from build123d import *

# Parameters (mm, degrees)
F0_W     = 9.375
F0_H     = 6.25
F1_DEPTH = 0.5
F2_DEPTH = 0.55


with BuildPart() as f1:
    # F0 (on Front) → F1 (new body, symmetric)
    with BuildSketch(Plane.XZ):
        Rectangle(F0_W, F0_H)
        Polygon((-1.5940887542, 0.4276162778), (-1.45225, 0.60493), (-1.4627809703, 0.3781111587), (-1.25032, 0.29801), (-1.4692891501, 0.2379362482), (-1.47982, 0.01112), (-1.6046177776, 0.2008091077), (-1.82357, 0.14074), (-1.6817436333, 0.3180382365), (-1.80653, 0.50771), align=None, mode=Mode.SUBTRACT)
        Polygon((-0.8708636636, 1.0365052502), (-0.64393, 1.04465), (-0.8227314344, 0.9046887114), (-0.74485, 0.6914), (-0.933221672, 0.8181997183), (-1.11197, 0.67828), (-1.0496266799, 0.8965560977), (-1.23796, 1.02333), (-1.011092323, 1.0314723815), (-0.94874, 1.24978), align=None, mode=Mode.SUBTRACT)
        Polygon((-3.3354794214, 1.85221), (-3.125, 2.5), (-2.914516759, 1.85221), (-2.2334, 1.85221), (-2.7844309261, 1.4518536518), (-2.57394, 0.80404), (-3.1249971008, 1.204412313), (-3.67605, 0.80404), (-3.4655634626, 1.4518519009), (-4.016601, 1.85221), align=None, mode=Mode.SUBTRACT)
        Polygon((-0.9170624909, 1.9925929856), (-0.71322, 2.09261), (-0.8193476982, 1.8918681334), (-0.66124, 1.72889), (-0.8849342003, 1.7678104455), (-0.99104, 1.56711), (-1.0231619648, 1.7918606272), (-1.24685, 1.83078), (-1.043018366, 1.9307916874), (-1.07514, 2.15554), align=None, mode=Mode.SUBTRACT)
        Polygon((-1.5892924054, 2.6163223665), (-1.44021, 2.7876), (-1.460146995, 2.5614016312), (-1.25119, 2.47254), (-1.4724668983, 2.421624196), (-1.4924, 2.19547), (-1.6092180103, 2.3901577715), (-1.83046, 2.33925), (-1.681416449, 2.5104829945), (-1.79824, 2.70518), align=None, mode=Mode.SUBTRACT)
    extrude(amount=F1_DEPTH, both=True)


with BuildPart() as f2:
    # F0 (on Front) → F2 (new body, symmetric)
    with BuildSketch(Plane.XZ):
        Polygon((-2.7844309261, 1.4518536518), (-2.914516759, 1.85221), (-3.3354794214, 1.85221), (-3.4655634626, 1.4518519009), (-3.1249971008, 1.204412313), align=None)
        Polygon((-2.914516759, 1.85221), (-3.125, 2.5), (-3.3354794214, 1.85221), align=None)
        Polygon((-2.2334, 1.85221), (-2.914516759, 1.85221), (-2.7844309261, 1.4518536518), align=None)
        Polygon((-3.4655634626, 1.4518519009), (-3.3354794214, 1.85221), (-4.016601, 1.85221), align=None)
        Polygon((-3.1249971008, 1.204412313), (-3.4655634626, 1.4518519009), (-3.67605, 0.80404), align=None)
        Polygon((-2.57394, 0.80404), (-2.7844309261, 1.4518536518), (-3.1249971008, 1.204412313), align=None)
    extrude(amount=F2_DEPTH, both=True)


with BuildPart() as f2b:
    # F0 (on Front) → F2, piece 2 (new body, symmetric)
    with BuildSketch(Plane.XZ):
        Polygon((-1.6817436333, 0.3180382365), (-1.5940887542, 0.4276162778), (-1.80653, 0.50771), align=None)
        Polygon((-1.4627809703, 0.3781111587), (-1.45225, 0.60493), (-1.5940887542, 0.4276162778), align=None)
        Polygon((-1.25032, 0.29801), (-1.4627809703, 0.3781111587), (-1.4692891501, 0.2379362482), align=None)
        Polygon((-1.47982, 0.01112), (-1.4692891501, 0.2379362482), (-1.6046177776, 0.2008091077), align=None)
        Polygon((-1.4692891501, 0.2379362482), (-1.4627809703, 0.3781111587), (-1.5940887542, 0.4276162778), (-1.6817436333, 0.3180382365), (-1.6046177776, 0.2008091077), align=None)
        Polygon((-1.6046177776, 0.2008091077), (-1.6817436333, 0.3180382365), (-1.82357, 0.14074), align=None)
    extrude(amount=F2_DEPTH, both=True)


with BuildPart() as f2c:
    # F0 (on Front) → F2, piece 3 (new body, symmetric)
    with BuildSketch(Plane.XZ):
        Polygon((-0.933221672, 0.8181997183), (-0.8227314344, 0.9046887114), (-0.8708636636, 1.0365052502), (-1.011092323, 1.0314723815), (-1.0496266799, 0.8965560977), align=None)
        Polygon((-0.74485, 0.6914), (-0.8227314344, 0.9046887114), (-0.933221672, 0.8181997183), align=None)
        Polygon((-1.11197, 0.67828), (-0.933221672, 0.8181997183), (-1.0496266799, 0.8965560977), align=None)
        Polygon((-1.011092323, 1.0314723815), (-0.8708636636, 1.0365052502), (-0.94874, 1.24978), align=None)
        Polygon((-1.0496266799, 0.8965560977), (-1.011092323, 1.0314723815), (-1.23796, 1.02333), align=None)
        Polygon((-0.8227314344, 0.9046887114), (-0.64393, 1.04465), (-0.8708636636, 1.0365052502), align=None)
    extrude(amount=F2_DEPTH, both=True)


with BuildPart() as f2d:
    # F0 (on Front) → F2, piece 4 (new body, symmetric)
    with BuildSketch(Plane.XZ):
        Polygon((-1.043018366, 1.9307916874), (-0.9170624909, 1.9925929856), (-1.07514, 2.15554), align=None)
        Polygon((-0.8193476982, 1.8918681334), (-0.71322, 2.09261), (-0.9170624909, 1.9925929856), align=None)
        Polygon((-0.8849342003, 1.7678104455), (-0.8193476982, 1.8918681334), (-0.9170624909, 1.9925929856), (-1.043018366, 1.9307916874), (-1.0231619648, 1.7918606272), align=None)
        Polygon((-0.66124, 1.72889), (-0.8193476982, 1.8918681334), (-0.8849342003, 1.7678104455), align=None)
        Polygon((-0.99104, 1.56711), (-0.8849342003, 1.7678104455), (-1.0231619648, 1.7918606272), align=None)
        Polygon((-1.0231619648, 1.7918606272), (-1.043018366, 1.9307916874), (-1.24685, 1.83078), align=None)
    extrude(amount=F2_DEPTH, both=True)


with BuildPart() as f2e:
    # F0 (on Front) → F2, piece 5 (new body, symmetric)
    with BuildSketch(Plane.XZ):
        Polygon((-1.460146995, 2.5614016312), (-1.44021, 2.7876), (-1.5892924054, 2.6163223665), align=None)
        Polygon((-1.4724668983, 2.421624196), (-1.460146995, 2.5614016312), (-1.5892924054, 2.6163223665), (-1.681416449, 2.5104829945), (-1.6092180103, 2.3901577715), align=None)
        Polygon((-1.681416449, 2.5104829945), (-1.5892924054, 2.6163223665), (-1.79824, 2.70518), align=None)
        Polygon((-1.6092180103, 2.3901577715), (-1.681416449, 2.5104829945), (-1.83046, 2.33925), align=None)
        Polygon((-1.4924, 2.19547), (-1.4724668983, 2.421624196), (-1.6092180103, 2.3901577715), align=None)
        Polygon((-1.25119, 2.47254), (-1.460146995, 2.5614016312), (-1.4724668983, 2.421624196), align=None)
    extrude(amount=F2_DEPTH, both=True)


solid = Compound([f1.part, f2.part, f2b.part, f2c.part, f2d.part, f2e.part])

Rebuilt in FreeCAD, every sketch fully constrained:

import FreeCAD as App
import Part
import Sketcher

V = App.Vector


def add_polygon(sketch, points):
    """Adds a closed chain of lines whose ends are joined by coincident constraints."""
    first, n = sketch.GeometryCount, len(points)
    for a, b in zip(points, points[1:] + points[:1]):
        sketch.addGeometry(Part.LineSegment(App.Vector(*a, 0), App.Vector(*b, 0)), False)
    for i in range(n):
        sketch.addConstraint(Sketcher.Constraint("Coincident", first + i, 2, first + (i + 1) % n, 1))

doc = App.newDocument("Part")
body = doc.addObject("PartDesign::Body", "Body")

sketch1 = body.newObject("Sketcher::SketchObject", "Sketch")
sketch1.AttachmentSupport = (doc.getObject("XZ_Plane"), [""])
sketch1.MapMode = "FlatFace"
add_polygon(sketch1, [(-4.6875, 3.125), (-4.6875, -3.125), (4.6875, -3.125), (4.6875, 3.125)])
add_polygon(sketch1, [(-1.80653, 0.50771), (-1.594089, 0.427616), (-1.45225, 0.60493), (-1.462781, 0.378111), (-1.25032, 0.29801), (-1.469289, 0.237936), (-1.47982, 0.01112), (-1.604618, 0.200809), (-1.82357, 0.14074), (-1.681744, 0.318038)])
add_polygon(sketch1, [(-0.94874, 1.24978), (-0.870864, 1.036505), (-0.64393, 1.04465), (-0.822731, 0.904689), (-0.74485, 0.6914), (-0.933222, 0.8182), (-1.11197, 0.67828), (-1.049627, 0.896556), (-1.23796, 1.02333), (-1.011092, 1.031472)])
add_polygon(sketch1, [(-4.016601, 1.85221), (-3.335479, 1.85221), (-3.125, 2.5), (-2.914517, 1.85221), (-2.2334, 1.85221), (-2.784431, 1.451854), (-2.57394, 0.80404), (-3.124997, 1.204412), (-3.67605, 0.80404), (-3.465563, 1.451852)])
add_polygon(sketch1, [(-1.07514, 2.15554), (-0.917062, 1.992593), (-0.71322, 2.09261), (-0.819348, 1.891868), (-0.66124, 1.72889), (-0.884934, 1.76781), (-0.99104, 1.56711), (-1.023162, 1.791861), (-1.24685, 1.83078), (-1.043018, 1.930792)])
add_polygon(sketch1, [(-1.79824, 2.70518), (-1.589292, 2.616322), (-1.44021, 2.7876), (-1.460147, 2.561402), (-1.25119, 2.47254), (-1.472467, 2.421624), (-1.4924, 2.19547), (-1.609218, 2.390158), (-1.83046, 2.33925), (-1.681416, 2.510483)])
sketch1.addConstraint([
    Sketcher.Constraint("Vertical", 0),
    Sketcher.Constraint("Horizontal", 1),
    Sketcher.Constraint("Vertical", 2),
    Sketcher.Constraint("Horizontal", 3),
    Sketcher.Constraint("Horizontal", 24),
    Sketcher.Constraint("Horizontal", 27),
    Sketcher.Constraint("DistanceY", 0, 2, 0, 1, 6.25),
    Sketcher.Constraint("DistanceY", -1, 1, 25, 2, 2.5),
    Sketcher.Constraint("DistanceX", 1, 1, 1, 2, 9.375),
    Sketcher.Constraint("Distance", 19, 0.226999),
    Sketcher.Constraint("DistanceY", 0, 2, -1, 1, 3.125),
    Sketcher.Constraint("DistanceX", 25, 2, -1, 1, 3.125),
    Sketcher.Constraint("DistanceY", 12, 2, 29, 2, 0.486002),
    Sketcher.Constraint("DistanceY", 43, 2, 47, 2, 0.317),
    Sketcher.Constraint("DistanceX", 24, 1, 24, 2, 0.681122),
    Sketcher.Constraint("DistanceX", 0, 2, -1, 1, 4.6875),
    Sketcher.Constraint("DistanceY", -1, 1, 17, 2, 0.6914),
    Sketcher.Constraint("DistanceY", -1, 1, 18, 2, 0.8182),
    Sketcher.Constraint("DistanceX", 27, 2, -1, 1, 2.2334),
    Sketcher.Constraint("DistanceX", 33, 2, -1, 1, 4.016601),
    Sketcher.Constraint("DistanceY", -1, 1, 45, 2, 2.7876),
    Sketcher.Constraint("DistanceY", -1, 1, 46, 2, 2.561402),
    Sketcher.Constraint("DistanceX", 49, 2, -1, 1, 1.4924),
    Sketcher.Constraint("DistanceY", 7, 2, 6, 2, 0.080101),
    Sketcher.Constraint("DistanceX", 4, 2, 8, 2, 0.1248),
    Sketcher.Constraint("DistanceX", 9, 2, 7, 2, 0.2295),
    Sketcher.Constraint("DistanceY", 10, 2, 7, 2, 0.097201),
    Sketcher.Constraint("DistanceY", 11, 2, 12, 2, 0.177298),
    Sketcher.Constraint("DistanceY", 8, 2, 12, 2, 0.080102),
    Sketcher.Constraint("DistanceY", 10, 2, 13, 2, 0.306901),
    Sketcher.Constraint("DistanceX", 16, 2, 15, 2, 0.178801),
    Sketcher.Constraint("DistanceX", 5, 2, 17, 2, 0.7074),
    Sketcher.Constraint("DistanceY", 13, 2, 24, 2, 1.3445),
    Sketcher.Constraint("DistanceY", 13, 2, 26, 2, 1.3445),
    Sketcher.Constraint("DistanceX", 28, 2, 13, 2, 0.977901),
    Sketcher.Constraint("DistanceX", 34, 2, 14, 2, 0.046199),
    Sketcher.Constraint("DistanceX", 23, 2, 37, 2, 0.2875),
    Sketcher.Constraint("DistanceY", 38, 2, 35, 2, 0.3248),
    Sketcher.Constraint("DistanceY", 39, 2, 38, 2, 0.2007),
    Sketcher.Constraint("DistanceX", 39, 2, 23, 2, 0.0423),
    Sketcher.Constraint("DistanceX", 40, 2, 34, 2, 0.106099),
    Sketcher.Constraint("DistanceY", 42, 2, 34, 2, 0.061801),
    Sketcher.Constraint("DistanceY", 48, 2, 44, 2, 0.194698),
    Sketcher.Constraint("DistanceX", 52, 2, 50, 2, 0.072198),
    Sketcher.Constraint("Distance", 4, 0.227038),
    Sketcher.Constraint("Distance", 7, 0.227059),
    Sketcher.Constraint("Distance", 8, 0.22706),
    Sketcher.Constraint("Distance", 9, 0.227061),
    Sketcher.Constraint("Distance", 10, 0.22706),
    Sketcher.Constraint("Distance", 13, 0.22704),
    Sketcher.Constraint("Distance", 14, 0.227048),
    Sketcher.Constraint("Distance", 15, 0.22708),
    Sketcher.Constraint("Distance", 32, 0.68115),
    Sketcher.Constraint("Distance", 36, 0.227069),
    Sketcher.Constraint("Distance", 37, 0.227068),
    Sketcher.Constraint("Distance", 41, 0.227049),
    Sketcher.Constraint("Distance", 45, 0.227072),
    Sketcher.Constraint("Distance", 48, 0.227059),
    Sketcher.Constraint("Distance", 49, 0.227031),
    Sketcher.Constraint("DistanceX", 27, 1, 27, 2, 0.681117),
    Sketcher.Constraint("DistanceX", 4, 2, -1, 1, 1.594089),
    Sketcher.Constraint("DistanceX", 5, 2, -1, 1, 1.45225),
    Sketcher.Constraint("DistanceY", -1, 1, 5, 2, 0.60493),
    Sketcher.Constraint("DistanceX", 6, 2, -1, 1, 1.462781),
    Sketcher.Constraint("DistanceY", -1, 1, 6, 2, 0.378111),
    Sketcher.Constraint("DistanceX", 11, 2, -1, 1, 1.82357),
    Sketcher.Constraint("DistanceX", 13, 2, -1, 1, 1.80653),
    Sketcher.Constraint("DistanceX", 15, 2, -1, 1, 0.64393),
    Sketcher.Constraint("DistanceY", -1, 1, 15, 2, 1.04465),
    Sketcher.Constraint("DistanceY", -1, 1, 16, 2, 0.904689),
    Sketcher.Constraint("DistanceX", 18, 2, -1, 1, 0.933222),
    Sketcher.Constraint("DistanceX", 19, 2, -1, 1, 1.11197),
    Sketcher.Constraint("DistanceX", 21, 2, -1, 1, 1.23796),
    Sketcher.Constraint("DistanceY", -1, 1, 21, 2, 1.02333),
    Sketcher.Constraint("DistanceX", 23, 2, -1, 1, 0.94874),
    Sketcher.Constraint("DistanceY", -1, 1, 23, 2, 1.24978),
    Sketcher.Constraint("DistanceX", 29, 2, -1, 1, 2.57394),
    Sketcher.Constraint("DistanceX", 31, 2, -1, 1, 3.67605),
    Sketcher.Constraint("DistanceY", -1, 1, 31, 2, 0.80404),
    Sketcher.Constraint("DistanceY", -1, 1, 32, 2, 1.451852),
    Sketcher.Constraint("DistanceX", 35, 2, -1, 1, 0.71322),
    Sketcher.Constraint("DistanceY", -1, 1, 35, 2, 2.09261),
    Sketcher.Constraint("DistanceY", -1, 1, 36, 2, 1.891868),
    Sketcher.Constraint("DistanceY", -1, 1, 40, 2, 1.791861),
    Sketcher.Constraint("DistanceX", 41, 2, -1, 1, 1.24685),
    Sketcher.Constraint("DistanceX", 42, 2, -1, 1, 1.043018),
    Sketcher.Constraint("DistanceY", -1, 1, 42, 2, 1.930792),
    Sketcher.Constraint("DistanceX", 43, 2, -1, 1, 1.07514),
    Sketcher.Constraint("DistanceY", -1, 1, 43, 2, 2.15554),
    Sketcher.Constraint("DistanceX", 45, 2, -1, 1, 1.44021),
    Sketcher.Constraint("DistanceX", 47, 2, -1, 1, 1.25119),
    Sketcher.Constraint("DistanceY", -1, 1, 49, 2, 2.19547),
    Sketcher.Constraint("DistanceX", 50, 2, -1, 1, 1.609218),
    Sketcher.Constraint("DistanceX", 51, 2, -1, 1, 1.83046),
    Sketcher.Constraint("DistanceY", -1, 1, 51, 2, 2.33925),
    Sketcher.Constraint("DistanceX", 53, 2, -1, 1, 1.79824),
    Sketcher.Constraint("DistanceY", -1, 1, 53, 2, 2.70518),
    Sketcher.Constraint("DistanceY", 20, 2, 14, 2, 0.139949),
    Sketcher.Constraint("DistanceX", 22, 2, 14, 2, 0.140229),
    Sketcher.Constraint("DistanceY", 30, 2, 28, 2, 0.247441),
    Sketcher.Constraint("DistanceX", 30, 2, 26, 2, 0.21048),
    Sketcher.Constraint("DistanceY", 30, 2, 32, 2, 0.24744),
    Sketcher.Constraint("DistanceY", 22, 2, 34, 2, 0.961121),
    Sketcher.Constraint("DistanceX", 34, 2, 38, 2, 0.032128),
    Sketcher.Constraint("DistanceX", 46, 2, 42, 2, 0.417129),
    Sketcher.Constraint("DistanceY", 52, 2, 44, 2, 0.105839),
    Sketcher.Constraint("Distance", 20, 0.227005),
    Sketcher.Constraint("Distance", 50, 0.227046),
])
pad1 = body.newObject("PartDesign::Pad", "Pad")
pad1.Profile = sketch1
pad1.Length = 1
pad1.Midplane = True
body2 = doc.addObject("PartDesign::Body", "Body001")

sketch2 = body2.newObject("Sketcher::SketchObject", "Sketch001")
sketch2.AttachmentSupport = (doc.getObject("XZ_Plane001"), [""])
sketch2.MapMode = "FlatFace"
add_polygon(sketch2, [(-2.914517, 1.85221), (-3.125, 2.5), (-3.335479, 1.85221), (-4.016601, 1.85221), (-3.465563, 1.451852), (-3.67605, 0.80404), (-3.124997, 1.204412), (-2.57394, 0.80404), (-2.784431, 1.451854), (-2.2334, 1.85221)])
sketch2.addConstraint([
    Sketcher.Constraint("Horizontal", 2),
    Sketcher.Constraint("Horizontal", 9),
    Sketcher.Constraint("Parallel", 1, 4),
    Sketcher.Constraint("Parallel", 3, 6),
    Sketcher.Constraint("Parallel", 0, 7),
    Sketcher.Constraint("Parallel", 5, 8),
    Sketcher.Constraint("Horizontal", 4, 2, 6, 2),
    Sketcher.Constraint("Horizontal", 3, 2, 7, 2),
    Sketcher.Constraint("Horizontal", 2, 2, 8, 2),
    Sketcher.Constraint("Equal", 0, 1),
    Sketcher.Constraint("DistanceY", -1, 1, 0, 2, 2.5),
    Sketcher.Constraint("DistanceX", 0, 2, -1, 1, 3.125),
    Sketcher.Constraint("DistanceX", 2, 2, 2, 1, 0.681122),
    Sketcher.Constraint("DistanceX", 2, 2, -1, 1, 4.016601),
    Sketcher.Constraint("DistanceX", 8, 2, -1, 1, 2.2334),
    Sketcher.Constraint("Distance", 4, 0.68115),
    Sketcher.Constraint("DistanceY", -1, 1, 1, 2, 1.85221),
    Sketcher.Constraint("DistanceY", -1, 1, 3, 2, 1.451852),
    Sketcher.Constraint("DistanceX", 4, 2, -1, 1, 3.67605),
    Sketcher.Constraint("DistanceX", 6, 2, -1, 1, 2.57394),
])
pad2 = body2.newObject("PartDesign::Pad", "Pad001")
pad2.Profile = sketch2
pad2.Length = 1.1
pad2.Midplane = True
body3 = doc.addObject("PartDesign::Body", "Body002")

sketch3 = body3.newObject("Sketcher::SketchObject", "Sketch002")
sketch3.AttachmentSupport = (doc.getObject("XZ_Plane002"), [""])
sketch3.MapMode = "FlatFace"
add_polygon(sketch3, [(-1.594089, 0.427616), (-1.80653, 0.50771), (-1.681744, 0.318038), (-1.82357, 0.14074), (-1.604618, 0.200809), (-1.47982, 0.01112), (-1.469289, 0.237936), (-1.25032, 0.29801), (-1.462781, 0.378111), (-1.45225, 0.60493)])
sketch3.addConstraint([
    Sketcher.Constraint("DistanceY", 2, 2, 1, 2, 0.177298),
    Sketcher.Constraint("DistanceY", 3, 2, 0, 2, 0.306901),
    Sketcher.Constraint("DistanceY", 5, 2, 1, 2, 0.080102),
    Sketcher.Constraint("DistanceY", 3, 2, 6, 2, 0.097201),
    Sketcher.Constraint("DistanceX", 4, 2, 6, 2, 0.2295),
    Sketcher.Constraint("DistanceY", 6, 2, 7, 2, 0.080101),
    Sketcher.Constraint("DistanceX", 9, 2, 5, 2, 0.1248),
    Sketcher.Constraint("Distance", 0, 0.227038),
    Sketcher.Constraint("Distance", 1, 0.22704),
    Sketcher.Constraint("Distance", 4, 0.22706),
    Sketcher.Constraint("Distance", 5, 0.227061),
    Sketcher.Constraint("Distance", 6, 0.22706),
    Sketcher.Constraint("Distance", 7, 0.227059),
    Sketcher.Constraint("DistanceX", 0, 2, -1, 1, 1.80653),
    Sketcher.Constraint("DistanceY", -1, 1, 0, 2, 0.50771),
    Sketcher.Constraint("DistanceY", -1, 1, 1, 2, 0.318038),
    Sketcher.Constraint("DistanceX", 2, 2, -1, 1, 1.82357),
    Sketcher.Constraint("DistanceX", 4, 2, -1, 1, 1.47982),
    Sketcher.Constraint("DistanceX", 8, 2, -1, 1, 1.45225),
    Sketcher.Constraint("DistanceY", -1, 1, 8, 2, 0.60493),
])
pad3 = body3.newObject("PartDesign::Pad", "Pad002")
pad3.Profile = sketch3
pad3.Length = 1.1
pad3.Midplane = True
body4 = doc.addObject("PartDesign::Body", "Body003")

sketch4 = body4.newObject("Sketcher::SketchObject", "Sketch003")
sketch4.AttachmentSupport = (doc.getObject("XZ_Plane003"), [""])
sketch4.MapMode = "FlatFace"
add_polygon(sketch4, [(-0.870864, 1.036505), (-0.94874, 1.24978), (-1.011092, 1.031472), (-1.23796, 1.02333), (-1.049627, 0.896556), (-1.11197, 0.67828), (-0.933222, 0.8182), (-0.74485, 0.6914), (-0.822731, 0.904689), (-0.64393, 1.04465)])
sketch4.addConstraint([
    Sketcher.Constraint("Parallel", 1, 4),
    Sketcher.Constraint("Parallel", 3, 6),
    Sketcher.Constraint("Parallel", 0, 7),
    Sketcher.Constraint("Parallel", 5, 8),
    Sketcher.Constraint("Parallel", 2, 9),
    Sketcher.Constraint("Distance", 5, 0.226999),
    Sketcher.Constraint("DistanceY", -1, 1, 5, 2, 0.8182),
    Sketcher.Constraint("DistanceY", -1, 1, 6, 2, 0.6914),
    Sketcher.Constraint("DistanceY", 4, 2, 0, 2, 0.5715),
    Sketcher.Constraint("DistanceX", 7, 2, 8, 2, 0.178801),
    Sketcher.Constraint("Distance", 0, 0.227048),
    Sketcher.Constraint("Distance", 9, 0.22708),
    Sketcher.Constraint("DistanceX", 0, 2, -1, 1, 0.94874),
    Sketcher.Constraint("DistanceY", -1, 1, 0, 2, 1.24978),
    Sketcher.Constraint("DistanceX", 2, 2, -1, 1, 1.23796),
    Sketcher.Constraint("DistanceY", -1, 1, 2, 2, 1.02333),
    Sketcher.Constraint("DistanceX", 4, 2, -1, 1, 1.11197),
    Sketcher.Constraint("DistanceX", 6, 2, -1, 1, 0.74485),
    Sketcher.Constraint("DistanceX", 7, 2, -1, 1, 0.822731),
    Sketcher.Constraint("DistanceX", 1, 2, 5, 2, 0.077871),
])
pad4 = body4.newObject("PartDesign::Pad", "Pad003")
pad4.Profile = sketch4
pad4.Length = 1.1
pad4.Midplane = True
body5 = doc.addObject("PartDesign::Body", "Body004")

sketch5 = body5.newObject("Sketcher::SketchObject", "Sketch004")
sketch5.AttachmentSupport = (doc.getObject("XZ_Plane004"), [""])
sketch5.MapMode = "FlatFace"
add_polygon(sketch5, [(-0.917062, 1.992593), (-1.07514, 2.15554), (-1.043018, 1.930792), (-1.24685, 1.83078), (-1.023162, 1.791861), (-0.99104, 1.56711), (-0.884934, 1.76781), (-0.66124, 1.72889), (-0.819348, 1.891868), (-0.71322, 2.09261)])
sketch5.addConstraint([
    Sketcher.Constraint("Parallel", 1, 4),
    Sketcher.Constraint("Parallel", 3, 6),
    Sketcher.Constraint("Parallel", 0, 7),
    Sketcher.Constraint("Parallel", 5, 8),
    Sketcher.Constraint("Parallel", 2, 9),
    Sketcher.Constraint("Equal", 7, 8),
    Sketcher.Constraint("DistanceX", 0, 2, 4, 2, 0.0841),
    Sketcher.Constraint("DistanceY", 4, 2, 5, 2, 0.2007),
    Sketcher.Constraint("DistanceX", 4, 2, 6, 2, 0.3298),
    Sketcher.Constraint("DistanceY", 6, 2, 1, 2, 0.201902),
    Sketcher.Constraint("DistanceX", 1, 2, 8, 2, 0.329798),
    Sketcher.Constraint("DistanceY", 5, 2, 8, 2, 0.3248),
    Sketcher.Constraint("DistanceY", 1, 2, 9, 2, 0.061801),
    Sketcher.Constraint("DistanceX", 3, 2, 9, 2, 0.106099),
    Sketcher.Constraint("Distance", 3, 0.227049),
    Sketcher.Constraint("Distance", 7, 0.227068),
    Sketcher.Constraint("DistanceX", 0, 2, -1, 1, 1.07514),
    Sketcher.Constraint("DistanceY", -1, 1, 0, 2, 2.15554),
    Sketcher.Constraint("DistanceX", 1, 2, -1, 1, 1.043018),
    Sketcher.Constraint("DistanceY", -1, 1, 1, 2, 1.930792),
])
pad5 = body5.newObject("PartDesign::Pad", "Pad004")
pad5.Profile = sketch5
pad5.Length = 1.1
pad5.Midplane = True
body6 = doc.addObject("PartDesign::Body", "Body005")

sketch6 = body6.newObject("Sketcher::SketchObject", "Sketch005")
sketch6.AttachmentSupport = (doc.getObject("XZ_Plane005"), [""])
sketch6.MapMode = "FlatFace"
add_polygon(sketch6, [(-1.460147, 2.561402), (-1.44021, 2.7876), (-1.589292, 2.616322), (-1.79824, 2.70518), (-1.681416, 2.510483), (-1.83046, 2.33925), (-1.609218, 2.390158), (-1.4924, 2.19547), (-1.472467, 2.421624), (-1.25119, 2.47254)])
sketch6.addConstraint([
    Sketcher.Constraint("Parallel", 1, 4),
    Sketcher.Constraint("Parallel", 3, 6),
    Sketcher.Constraint("Parallel", 0, 7),
    Sketcher.Constraint("Parallel", 5, 8),
    Sketcher.Constraint("Parallel", 2, 9),
    Sketcher.Constraint("Equal", 2, 3),
    Sketcher.Constraint("DistanceY", -1, 1, 0, 2, 2.7876),
    Sketcher.Constraint("DistanceX", 6, 2, -1, 1, 1.4924),
    Sketcher.Constraint("DistanceY", -1, 1, 9, 2, 2.561402),
    Sketcher.Constraint("DistanceX", 3, 2, 5, 2, 0.072198),
    Sketcher.Constraint("DistanceY", 7, 2, 1, 2, 0.194698),
    Sketcher.Constraint("Distance", 1, 0.227072),
    Sketcher.Constraint("Distance", 7, 0.227031),
    Sketcher.Constraint("Distance", 8, 0.227059),
    Sketcher.Constraint("DistanceX", 0, 2, -1, 1, 1.44021),
    Sketcher.Constraint("DistanceX", 2, 2, -1, 1, 1.79824),
    Sketcher.Constraint("DistanceY", -1, 1, 2, 2, 2.70518),
    Sketcher.Constraint("DistanceX", 4, 2, -1, 1, 1.83046),
    Sketcher.Constraint("DistanceY", -1, 1, 4, 2, 2.33925),
    Sketcher.Constraint("DistanceX", 5, 2, -1, 1, 1.609218),
])
pad6 = body6.newObject("PartDesign::Pad", "Pad005")
pad6.Profile = sketch6
pad6.Length = 1.1
pad6.Midplane = True

doc.recompute()
